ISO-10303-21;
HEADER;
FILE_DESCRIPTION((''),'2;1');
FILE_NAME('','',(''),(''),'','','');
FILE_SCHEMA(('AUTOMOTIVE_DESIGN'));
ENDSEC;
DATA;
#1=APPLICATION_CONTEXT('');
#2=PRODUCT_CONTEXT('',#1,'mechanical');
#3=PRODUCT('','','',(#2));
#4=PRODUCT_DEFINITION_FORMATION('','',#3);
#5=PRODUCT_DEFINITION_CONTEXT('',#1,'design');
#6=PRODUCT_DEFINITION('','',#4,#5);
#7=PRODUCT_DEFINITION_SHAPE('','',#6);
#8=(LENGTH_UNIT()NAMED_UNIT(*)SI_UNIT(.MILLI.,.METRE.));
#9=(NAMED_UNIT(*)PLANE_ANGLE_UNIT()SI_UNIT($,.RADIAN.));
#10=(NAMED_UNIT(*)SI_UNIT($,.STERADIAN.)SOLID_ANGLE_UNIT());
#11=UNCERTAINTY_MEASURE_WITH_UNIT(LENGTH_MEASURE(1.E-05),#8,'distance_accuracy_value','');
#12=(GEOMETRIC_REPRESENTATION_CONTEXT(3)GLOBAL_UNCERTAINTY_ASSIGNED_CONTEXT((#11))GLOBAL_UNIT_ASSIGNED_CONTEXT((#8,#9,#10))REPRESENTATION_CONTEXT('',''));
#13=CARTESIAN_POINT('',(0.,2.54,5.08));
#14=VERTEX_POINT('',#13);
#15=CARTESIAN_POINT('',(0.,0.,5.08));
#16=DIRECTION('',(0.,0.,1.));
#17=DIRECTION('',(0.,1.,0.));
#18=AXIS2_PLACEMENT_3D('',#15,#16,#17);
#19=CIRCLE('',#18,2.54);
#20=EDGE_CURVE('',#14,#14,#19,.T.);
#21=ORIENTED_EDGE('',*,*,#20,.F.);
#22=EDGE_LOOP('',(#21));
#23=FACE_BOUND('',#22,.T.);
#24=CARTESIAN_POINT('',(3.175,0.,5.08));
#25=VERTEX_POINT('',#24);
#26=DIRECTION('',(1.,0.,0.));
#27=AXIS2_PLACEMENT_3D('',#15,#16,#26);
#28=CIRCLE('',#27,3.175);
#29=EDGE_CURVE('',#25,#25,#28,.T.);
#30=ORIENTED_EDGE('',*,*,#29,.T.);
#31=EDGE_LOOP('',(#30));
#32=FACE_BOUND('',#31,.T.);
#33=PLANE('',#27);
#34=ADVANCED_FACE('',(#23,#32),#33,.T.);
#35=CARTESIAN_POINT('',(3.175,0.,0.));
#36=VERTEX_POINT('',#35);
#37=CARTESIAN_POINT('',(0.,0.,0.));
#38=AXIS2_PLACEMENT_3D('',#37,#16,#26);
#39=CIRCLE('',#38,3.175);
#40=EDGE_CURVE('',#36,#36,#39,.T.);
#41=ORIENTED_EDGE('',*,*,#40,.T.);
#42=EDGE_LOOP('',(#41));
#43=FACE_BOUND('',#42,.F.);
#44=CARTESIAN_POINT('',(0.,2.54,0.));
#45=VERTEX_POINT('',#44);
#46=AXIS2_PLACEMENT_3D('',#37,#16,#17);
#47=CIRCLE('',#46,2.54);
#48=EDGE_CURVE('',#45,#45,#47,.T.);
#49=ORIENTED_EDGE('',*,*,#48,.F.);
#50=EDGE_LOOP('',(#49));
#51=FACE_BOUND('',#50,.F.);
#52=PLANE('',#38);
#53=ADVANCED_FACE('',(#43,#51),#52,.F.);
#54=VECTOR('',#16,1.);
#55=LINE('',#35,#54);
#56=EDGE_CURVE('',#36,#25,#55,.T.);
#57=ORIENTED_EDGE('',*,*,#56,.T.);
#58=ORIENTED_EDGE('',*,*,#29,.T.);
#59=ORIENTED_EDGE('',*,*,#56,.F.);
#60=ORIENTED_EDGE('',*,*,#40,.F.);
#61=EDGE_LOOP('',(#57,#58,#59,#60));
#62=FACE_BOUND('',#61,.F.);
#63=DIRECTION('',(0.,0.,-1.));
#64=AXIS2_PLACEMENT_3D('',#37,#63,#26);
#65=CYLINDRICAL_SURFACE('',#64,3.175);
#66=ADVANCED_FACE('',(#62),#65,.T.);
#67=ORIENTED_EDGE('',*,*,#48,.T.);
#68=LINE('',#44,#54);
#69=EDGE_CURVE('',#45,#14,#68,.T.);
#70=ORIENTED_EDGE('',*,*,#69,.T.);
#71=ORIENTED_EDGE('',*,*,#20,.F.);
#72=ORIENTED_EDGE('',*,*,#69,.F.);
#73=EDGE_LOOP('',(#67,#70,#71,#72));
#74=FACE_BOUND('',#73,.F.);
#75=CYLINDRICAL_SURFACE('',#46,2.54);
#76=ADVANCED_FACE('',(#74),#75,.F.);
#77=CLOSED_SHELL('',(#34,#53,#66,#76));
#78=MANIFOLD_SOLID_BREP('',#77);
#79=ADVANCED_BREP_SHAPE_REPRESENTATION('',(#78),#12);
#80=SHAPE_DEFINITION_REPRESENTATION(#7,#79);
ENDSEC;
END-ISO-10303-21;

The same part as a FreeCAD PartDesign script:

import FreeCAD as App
import Part
import Sketcher
from FreeCAD import Vector
Q = App.Units.Quantity

doc = App.newDocument("Part")
body = doc.addObject("PartDesign::Body", "Body")

# Sketch on XY plane
sketch1 = doc.addObject("Sketcher::SketchObject", "Sketch")
body.addObject(sketch1)
sketch1.AttachmentSupport = (doc.XY_Plane, [""])
sketch1.MapMode = "FlatFace"
sketch1.addGeometry(Part.Circle(Vector(0, 0, 0), Vector(0, 0, 1), 3.175), False)
sketch1.addConstraint([
    Sketcher.Constraint("Coincident", 0, 3, -1, 1),
    Sketcher.Constraint("Diameter", 0, Q("0.25 in")),
])
pad1 = doc.addObject("PartDesign::Pad", "Pad")
body.addObject(pad1)
pad1.Profile = sketch1
pad1.Length = Q("0.2 in")

# Sketch on XY plane
sketch2 = doc.addObject("Sketcher::SketchObject", "Sketch001")
body.addObject(sketch2)
sketch2.AttachmentSupport = (doc.XY_Plane, [""])
sketch2.MapMode = "FlatFace"
sketch2.addGeometry(Part.Circle(Vector(0, 0, 0), Vector(0, 0, 1), 2.54), False)
sketch2.addConstraint([
    Sketcher.Constraint("Coincident", 0, 3, -1, 1),
    Sketcher.Constraint("Diameter", 0, Q("0.2 in")),
])
doc.recompute()
hole = doc.addObject("PartDesign::Hole", "Hole")
body.addObject(hole)
hole.Profile = sketch2
hole.ThreadType = "None"
hole.Diameter = Q("0.2 in")
hole.DepthType = "ThroughAll"
hole.Reversed = True

doc.recompute()
